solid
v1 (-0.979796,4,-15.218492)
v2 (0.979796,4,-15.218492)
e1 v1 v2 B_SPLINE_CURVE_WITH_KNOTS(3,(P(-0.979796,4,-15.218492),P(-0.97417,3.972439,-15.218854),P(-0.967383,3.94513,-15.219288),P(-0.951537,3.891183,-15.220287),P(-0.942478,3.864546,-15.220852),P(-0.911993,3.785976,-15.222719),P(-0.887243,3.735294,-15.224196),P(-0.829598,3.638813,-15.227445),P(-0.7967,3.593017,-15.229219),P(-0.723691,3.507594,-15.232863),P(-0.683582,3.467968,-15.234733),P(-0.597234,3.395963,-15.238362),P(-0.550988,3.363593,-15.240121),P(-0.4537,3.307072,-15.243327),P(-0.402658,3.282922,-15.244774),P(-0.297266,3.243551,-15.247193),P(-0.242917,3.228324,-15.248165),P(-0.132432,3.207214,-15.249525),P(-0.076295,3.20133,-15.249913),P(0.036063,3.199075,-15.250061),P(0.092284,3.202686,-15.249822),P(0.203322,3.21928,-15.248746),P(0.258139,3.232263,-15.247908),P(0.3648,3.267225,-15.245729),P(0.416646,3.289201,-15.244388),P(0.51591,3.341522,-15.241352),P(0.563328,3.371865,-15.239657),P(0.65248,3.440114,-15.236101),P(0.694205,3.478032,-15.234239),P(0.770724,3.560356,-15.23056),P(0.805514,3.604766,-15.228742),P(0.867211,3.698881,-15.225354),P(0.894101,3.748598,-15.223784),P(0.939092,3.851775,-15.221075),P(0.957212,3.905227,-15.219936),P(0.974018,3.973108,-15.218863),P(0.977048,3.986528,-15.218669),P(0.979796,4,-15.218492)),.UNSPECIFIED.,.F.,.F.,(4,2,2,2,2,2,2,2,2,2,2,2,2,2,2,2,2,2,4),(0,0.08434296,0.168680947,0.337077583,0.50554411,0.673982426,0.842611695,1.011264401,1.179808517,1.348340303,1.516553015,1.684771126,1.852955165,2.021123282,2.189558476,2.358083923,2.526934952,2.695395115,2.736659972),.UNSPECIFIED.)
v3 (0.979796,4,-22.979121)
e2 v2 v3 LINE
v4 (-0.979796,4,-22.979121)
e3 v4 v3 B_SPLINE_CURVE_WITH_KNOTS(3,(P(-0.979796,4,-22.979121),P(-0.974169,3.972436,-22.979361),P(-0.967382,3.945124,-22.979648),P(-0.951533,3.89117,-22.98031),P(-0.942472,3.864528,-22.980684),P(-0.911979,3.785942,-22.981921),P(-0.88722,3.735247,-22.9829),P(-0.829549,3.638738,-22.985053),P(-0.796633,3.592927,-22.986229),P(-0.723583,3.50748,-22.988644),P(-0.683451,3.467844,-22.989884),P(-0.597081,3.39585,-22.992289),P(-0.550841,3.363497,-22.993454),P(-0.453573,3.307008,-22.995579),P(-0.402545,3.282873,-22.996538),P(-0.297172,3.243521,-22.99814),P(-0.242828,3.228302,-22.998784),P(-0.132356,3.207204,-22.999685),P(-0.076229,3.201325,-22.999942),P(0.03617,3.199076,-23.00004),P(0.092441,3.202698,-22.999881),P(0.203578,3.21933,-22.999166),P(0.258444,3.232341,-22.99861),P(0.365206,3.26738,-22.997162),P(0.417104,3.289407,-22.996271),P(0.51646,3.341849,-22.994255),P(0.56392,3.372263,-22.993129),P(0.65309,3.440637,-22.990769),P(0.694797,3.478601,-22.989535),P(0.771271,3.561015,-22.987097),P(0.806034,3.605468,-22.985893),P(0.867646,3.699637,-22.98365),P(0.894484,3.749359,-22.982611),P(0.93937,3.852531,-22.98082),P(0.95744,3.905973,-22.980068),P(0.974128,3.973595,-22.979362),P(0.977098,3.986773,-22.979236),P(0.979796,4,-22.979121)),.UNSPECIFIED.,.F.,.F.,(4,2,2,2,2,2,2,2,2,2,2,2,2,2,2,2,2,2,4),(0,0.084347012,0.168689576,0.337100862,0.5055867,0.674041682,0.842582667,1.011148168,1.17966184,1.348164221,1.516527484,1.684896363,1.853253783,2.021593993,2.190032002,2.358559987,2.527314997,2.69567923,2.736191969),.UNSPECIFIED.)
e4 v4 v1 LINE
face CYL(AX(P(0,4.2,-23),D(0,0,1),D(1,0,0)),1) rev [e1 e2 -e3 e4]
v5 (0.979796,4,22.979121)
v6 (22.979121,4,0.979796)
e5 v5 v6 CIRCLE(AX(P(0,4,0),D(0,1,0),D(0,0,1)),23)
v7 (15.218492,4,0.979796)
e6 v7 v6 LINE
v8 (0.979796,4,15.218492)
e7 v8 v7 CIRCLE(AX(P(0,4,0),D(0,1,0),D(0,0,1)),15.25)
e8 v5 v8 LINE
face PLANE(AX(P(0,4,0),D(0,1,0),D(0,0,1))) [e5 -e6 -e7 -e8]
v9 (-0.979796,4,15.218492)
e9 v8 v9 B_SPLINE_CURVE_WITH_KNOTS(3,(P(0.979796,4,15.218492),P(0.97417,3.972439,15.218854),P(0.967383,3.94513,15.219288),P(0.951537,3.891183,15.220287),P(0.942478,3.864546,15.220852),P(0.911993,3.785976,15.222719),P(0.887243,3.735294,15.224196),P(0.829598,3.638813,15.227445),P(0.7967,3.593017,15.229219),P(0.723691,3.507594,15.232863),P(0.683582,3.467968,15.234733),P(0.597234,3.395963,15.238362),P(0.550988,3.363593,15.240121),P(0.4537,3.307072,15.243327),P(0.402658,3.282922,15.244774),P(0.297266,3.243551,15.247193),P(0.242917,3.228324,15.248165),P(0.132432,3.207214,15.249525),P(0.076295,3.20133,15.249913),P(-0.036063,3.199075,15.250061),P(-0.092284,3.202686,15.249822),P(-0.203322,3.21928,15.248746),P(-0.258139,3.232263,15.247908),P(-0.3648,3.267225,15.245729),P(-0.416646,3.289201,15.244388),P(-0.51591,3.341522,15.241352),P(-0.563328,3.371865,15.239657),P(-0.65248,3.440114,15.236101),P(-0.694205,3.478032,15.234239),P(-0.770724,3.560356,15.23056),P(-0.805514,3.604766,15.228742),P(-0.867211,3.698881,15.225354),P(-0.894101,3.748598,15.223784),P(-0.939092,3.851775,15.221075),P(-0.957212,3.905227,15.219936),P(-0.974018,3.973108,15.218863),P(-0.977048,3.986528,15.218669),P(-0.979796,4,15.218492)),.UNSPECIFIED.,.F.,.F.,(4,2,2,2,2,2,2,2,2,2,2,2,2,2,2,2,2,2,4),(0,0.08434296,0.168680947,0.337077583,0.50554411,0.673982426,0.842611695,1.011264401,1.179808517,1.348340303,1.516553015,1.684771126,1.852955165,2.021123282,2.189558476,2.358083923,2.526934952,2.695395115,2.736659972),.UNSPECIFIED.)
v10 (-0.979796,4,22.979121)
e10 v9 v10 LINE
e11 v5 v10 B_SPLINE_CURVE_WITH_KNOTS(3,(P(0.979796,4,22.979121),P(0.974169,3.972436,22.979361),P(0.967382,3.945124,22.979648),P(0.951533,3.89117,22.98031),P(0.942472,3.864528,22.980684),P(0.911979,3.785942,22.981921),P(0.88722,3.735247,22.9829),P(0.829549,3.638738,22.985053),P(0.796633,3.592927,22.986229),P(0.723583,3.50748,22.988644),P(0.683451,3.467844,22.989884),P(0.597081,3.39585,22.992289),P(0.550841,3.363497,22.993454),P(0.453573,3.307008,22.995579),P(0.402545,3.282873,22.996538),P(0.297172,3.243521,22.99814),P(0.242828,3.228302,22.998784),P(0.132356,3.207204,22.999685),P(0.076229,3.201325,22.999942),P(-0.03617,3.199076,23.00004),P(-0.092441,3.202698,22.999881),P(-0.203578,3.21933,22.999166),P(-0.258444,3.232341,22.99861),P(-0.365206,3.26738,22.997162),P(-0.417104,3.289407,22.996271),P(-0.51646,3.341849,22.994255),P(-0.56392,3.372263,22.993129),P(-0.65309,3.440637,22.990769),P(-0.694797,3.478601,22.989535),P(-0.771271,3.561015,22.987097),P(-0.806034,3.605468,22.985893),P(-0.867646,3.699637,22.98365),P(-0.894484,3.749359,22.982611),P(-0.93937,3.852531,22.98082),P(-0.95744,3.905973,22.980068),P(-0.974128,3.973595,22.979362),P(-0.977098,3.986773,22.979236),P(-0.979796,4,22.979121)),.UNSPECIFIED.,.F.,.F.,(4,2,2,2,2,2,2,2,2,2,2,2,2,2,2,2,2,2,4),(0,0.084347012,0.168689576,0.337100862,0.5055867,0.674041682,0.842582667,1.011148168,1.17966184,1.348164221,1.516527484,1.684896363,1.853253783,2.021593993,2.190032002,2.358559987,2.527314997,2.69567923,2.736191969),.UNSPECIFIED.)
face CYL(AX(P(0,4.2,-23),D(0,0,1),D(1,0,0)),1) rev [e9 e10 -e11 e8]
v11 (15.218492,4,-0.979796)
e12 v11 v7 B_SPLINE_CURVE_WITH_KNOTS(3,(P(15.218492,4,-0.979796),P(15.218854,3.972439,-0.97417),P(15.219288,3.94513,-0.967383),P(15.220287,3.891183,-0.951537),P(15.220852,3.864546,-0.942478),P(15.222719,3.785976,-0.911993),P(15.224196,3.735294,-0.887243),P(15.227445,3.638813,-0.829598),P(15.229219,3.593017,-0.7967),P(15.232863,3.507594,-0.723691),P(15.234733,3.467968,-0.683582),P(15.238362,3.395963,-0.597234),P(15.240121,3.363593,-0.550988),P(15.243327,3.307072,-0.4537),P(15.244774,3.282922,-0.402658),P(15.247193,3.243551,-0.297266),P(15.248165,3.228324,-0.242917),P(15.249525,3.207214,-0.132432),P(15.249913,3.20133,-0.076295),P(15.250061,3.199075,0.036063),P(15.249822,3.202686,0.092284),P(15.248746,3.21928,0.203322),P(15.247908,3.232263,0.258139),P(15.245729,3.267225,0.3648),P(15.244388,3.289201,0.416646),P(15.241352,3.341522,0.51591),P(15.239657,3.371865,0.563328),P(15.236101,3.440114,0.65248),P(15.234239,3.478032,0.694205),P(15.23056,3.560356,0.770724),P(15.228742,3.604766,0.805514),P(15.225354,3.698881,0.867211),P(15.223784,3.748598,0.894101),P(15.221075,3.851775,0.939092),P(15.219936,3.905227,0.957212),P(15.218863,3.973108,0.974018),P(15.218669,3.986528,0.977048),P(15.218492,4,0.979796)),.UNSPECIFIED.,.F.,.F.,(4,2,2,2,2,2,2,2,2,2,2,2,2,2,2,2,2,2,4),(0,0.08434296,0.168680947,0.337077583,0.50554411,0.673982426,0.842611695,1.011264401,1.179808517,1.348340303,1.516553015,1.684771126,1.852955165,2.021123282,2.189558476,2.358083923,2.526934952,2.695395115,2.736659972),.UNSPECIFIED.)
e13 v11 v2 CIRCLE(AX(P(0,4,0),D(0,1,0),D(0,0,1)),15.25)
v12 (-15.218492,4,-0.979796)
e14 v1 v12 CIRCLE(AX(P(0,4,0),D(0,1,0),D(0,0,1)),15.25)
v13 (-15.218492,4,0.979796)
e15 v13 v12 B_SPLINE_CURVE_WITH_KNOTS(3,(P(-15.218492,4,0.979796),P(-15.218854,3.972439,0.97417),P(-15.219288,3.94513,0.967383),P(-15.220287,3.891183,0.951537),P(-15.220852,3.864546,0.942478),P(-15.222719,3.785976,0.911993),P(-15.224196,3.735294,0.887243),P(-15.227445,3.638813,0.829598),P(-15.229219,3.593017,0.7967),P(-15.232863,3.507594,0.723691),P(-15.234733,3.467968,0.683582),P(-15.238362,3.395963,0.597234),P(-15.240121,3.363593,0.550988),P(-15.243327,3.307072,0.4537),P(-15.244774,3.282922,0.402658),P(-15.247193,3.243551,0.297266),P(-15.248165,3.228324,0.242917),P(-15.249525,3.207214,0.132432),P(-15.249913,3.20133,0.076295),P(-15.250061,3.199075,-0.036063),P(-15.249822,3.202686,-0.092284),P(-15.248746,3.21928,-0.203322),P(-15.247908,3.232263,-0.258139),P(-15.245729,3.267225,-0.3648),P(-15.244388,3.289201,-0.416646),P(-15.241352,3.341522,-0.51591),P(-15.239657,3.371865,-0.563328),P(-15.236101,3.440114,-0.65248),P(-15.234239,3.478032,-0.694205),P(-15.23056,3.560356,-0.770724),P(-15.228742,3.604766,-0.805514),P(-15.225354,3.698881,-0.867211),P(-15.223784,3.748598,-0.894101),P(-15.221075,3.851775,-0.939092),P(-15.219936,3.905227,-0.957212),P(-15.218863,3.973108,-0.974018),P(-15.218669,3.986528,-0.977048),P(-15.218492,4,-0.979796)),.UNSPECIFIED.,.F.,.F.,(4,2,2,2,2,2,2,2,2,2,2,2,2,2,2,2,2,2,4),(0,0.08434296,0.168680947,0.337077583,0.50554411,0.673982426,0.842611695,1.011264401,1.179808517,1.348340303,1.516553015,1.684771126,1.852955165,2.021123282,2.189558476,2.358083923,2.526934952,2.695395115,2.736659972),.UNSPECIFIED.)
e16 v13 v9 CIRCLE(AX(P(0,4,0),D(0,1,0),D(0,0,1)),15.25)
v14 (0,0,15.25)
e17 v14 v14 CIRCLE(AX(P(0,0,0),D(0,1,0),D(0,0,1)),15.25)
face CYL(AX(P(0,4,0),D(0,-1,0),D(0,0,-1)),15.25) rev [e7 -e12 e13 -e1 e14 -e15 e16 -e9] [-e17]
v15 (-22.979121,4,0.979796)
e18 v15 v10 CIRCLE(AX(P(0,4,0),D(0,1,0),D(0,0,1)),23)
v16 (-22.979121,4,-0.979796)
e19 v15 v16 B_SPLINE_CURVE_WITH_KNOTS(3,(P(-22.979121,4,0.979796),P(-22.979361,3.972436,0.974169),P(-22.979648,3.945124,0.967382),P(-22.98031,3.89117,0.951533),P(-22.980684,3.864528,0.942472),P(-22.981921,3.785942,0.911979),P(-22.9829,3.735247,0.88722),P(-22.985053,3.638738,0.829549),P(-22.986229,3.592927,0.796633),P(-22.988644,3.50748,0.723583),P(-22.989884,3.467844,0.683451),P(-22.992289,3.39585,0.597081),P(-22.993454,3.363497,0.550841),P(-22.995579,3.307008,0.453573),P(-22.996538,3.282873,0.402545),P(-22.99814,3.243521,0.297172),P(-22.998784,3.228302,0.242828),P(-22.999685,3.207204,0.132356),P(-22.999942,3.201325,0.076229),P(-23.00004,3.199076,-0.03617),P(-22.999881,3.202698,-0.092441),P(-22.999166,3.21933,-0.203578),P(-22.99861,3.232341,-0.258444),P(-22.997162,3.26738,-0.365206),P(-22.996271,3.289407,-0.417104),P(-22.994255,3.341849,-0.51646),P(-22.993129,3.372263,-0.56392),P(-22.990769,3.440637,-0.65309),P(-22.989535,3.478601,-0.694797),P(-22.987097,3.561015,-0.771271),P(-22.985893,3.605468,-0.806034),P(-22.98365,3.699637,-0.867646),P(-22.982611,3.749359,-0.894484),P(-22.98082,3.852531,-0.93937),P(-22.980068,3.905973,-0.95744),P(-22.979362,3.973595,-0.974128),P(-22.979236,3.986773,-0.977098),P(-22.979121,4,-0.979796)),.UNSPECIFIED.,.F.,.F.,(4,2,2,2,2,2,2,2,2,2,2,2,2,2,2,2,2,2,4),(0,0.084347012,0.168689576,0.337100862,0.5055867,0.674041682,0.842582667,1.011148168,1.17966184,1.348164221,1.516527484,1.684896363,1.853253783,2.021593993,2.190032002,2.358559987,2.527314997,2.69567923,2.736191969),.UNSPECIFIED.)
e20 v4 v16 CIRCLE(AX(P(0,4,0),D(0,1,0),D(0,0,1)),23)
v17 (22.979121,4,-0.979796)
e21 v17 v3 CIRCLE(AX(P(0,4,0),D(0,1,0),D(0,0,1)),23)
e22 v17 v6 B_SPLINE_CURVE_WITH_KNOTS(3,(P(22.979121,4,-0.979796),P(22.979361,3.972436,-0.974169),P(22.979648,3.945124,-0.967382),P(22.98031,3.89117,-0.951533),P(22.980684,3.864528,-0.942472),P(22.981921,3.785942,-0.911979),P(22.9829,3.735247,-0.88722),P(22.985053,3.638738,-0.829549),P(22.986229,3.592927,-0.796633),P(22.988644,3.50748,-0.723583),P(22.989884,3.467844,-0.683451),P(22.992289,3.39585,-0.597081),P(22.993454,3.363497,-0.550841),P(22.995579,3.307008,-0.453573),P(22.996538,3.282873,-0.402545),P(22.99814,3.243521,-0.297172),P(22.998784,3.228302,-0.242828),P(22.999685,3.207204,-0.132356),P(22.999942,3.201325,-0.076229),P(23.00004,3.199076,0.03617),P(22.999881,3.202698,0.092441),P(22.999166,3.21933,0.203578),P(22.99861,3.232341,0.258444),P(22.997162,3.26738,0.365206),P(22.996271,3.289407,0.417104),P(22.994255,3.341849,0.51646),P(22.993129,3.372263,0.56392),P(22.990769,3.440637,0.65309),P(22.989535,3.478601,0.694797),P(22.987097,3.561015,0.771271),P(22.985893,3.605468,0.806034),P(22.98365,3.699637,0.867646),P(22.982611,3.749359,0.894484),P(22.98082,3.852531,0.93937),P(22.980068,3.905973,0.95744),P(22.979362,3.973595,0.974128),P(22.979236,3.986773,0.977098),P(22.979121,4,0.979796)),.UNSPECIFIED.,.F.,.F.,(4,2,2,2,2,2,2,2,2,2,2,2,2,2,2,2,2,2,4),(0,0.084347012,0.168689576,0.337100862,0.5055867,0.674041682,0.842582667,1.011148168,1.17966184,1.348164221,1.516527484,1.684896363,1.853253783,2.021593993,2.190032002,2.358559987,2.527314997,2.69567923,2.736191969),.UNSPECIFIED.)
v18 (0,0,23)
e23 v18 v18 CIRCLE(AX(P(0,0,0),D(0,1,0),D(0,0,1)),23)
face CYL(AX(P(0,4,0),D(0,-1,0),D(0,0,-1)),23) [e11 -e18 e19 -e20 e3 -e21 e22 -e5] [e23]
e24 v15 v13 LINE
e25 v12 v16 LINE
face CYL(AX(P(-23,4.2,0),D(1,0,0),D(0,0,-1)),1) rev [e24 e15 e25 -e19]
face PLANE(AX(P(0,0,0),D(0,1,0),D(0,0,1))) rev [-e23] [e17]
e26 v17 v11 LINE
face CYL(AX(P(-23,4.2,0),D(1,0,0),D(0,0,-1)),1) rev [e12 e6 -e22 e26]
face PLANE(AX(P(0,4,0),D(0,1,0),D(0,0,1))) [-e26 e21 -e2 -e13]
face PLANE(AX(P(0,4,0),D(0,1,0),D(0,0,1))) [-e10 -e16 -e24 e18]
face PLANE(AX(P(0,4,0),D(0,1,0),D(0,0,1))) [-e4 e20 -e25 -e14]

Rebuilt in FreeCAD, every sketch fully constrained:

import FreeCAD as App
import Part
import Sketcher

doc = App.newDocument("Part")
body = doc.addObject("PartDesign::Body", "Body")

sketch1 = body.newObject("Sketcher::SketchObject", "Sketch")
sketch1.AttachmentSupport = (doc.getObject("XZ_Plane"), [""])
sketch1.MapMode = "FlatFace"
sketch1.addGeometry(Part.Circle(App.Vector(0, 0, 0), App.Vector(0, 0, 1), 23), False)
sketch1.addGeometry(Part.Circle(App.Vector(0, 0, 0), App.Vector(0, 0, 1), 15), False)
sketch1.addConstraint(Sketcher.Constraint("Coincident", 0, 3, -1, 1))
sketch1.addConstraint(Sketcher.Constraint("Coincident", 1, 3, -1, 1))
sketch1.addConstraint(Sketcher.Constraint("Diameter", 0, 46.0))
sketch1.addConstraint(Sketcher.Constraint("Diameter", 1, 30.5))
pad1 = body.newObject("PartDesign::Pad", "Pad")
pad1.Profile = sketch1
pad1.Length = 4
pad1.Reversed = True

sketch2 = body.newObject("Sketcher::SketchObject", "Sketch001")
sketch2.AttachmentSupport = (doc.getObject("XY_Plane"), [""])
sketch2.MapMode = "FlatFace"
sketch2.addGeometry(Part.Circle(App.Vector(0, 4.2, 0), App.Vector(0, 0, 1), 1), False)
sketch2.addConstraint(Sketcher.Constraint("PointOnObject", 0, 3, -2))
sketch2.addConstraint(Sketcher.Constraint("Diameter", 0, 2.0))
sketch2.addConstraint(Sketcher.Constraint("DistanceY", -1, 1, 0, 3, 4.2))
pocket1 = body.newObject("PartDesign::Pocket", "Pocket")
pocket1.Profile = sketch2
pocket1.Type = "ThroughAll"
pocket1.Midplane = True

sketch3 = body.newObject("Sketcher::SketchObject", "Sketch002")
sketch3.AttachmentSupport = (doc.getObject("YZ_Plane"), [""])
sketch3.MapMode = "FlatFace"
sketch3.addGeometry(Part.Circle(App.Vector(4.2, 0, 0), App.Vector(0, 0, 1), 1), False)
sketch3.addConstraint(Sketcher.Constraint("PointOnObject", 0, 3, -1))
sketch3.addConstraint(Sketcher.Constraint("Diameter", 0, 2.0))
sketch3.addConstraint(Sketcher.Constraint("DistanceX", -1, 1, 0, 3, 4.2))
pocket2 = body.newObject("PartDesign::Pocket", "Pocket001")
pocket2.Profile = sketch3
pocket2.Type = "ThroughAll"
pocket2.Midplane = True

doc.recompute()
